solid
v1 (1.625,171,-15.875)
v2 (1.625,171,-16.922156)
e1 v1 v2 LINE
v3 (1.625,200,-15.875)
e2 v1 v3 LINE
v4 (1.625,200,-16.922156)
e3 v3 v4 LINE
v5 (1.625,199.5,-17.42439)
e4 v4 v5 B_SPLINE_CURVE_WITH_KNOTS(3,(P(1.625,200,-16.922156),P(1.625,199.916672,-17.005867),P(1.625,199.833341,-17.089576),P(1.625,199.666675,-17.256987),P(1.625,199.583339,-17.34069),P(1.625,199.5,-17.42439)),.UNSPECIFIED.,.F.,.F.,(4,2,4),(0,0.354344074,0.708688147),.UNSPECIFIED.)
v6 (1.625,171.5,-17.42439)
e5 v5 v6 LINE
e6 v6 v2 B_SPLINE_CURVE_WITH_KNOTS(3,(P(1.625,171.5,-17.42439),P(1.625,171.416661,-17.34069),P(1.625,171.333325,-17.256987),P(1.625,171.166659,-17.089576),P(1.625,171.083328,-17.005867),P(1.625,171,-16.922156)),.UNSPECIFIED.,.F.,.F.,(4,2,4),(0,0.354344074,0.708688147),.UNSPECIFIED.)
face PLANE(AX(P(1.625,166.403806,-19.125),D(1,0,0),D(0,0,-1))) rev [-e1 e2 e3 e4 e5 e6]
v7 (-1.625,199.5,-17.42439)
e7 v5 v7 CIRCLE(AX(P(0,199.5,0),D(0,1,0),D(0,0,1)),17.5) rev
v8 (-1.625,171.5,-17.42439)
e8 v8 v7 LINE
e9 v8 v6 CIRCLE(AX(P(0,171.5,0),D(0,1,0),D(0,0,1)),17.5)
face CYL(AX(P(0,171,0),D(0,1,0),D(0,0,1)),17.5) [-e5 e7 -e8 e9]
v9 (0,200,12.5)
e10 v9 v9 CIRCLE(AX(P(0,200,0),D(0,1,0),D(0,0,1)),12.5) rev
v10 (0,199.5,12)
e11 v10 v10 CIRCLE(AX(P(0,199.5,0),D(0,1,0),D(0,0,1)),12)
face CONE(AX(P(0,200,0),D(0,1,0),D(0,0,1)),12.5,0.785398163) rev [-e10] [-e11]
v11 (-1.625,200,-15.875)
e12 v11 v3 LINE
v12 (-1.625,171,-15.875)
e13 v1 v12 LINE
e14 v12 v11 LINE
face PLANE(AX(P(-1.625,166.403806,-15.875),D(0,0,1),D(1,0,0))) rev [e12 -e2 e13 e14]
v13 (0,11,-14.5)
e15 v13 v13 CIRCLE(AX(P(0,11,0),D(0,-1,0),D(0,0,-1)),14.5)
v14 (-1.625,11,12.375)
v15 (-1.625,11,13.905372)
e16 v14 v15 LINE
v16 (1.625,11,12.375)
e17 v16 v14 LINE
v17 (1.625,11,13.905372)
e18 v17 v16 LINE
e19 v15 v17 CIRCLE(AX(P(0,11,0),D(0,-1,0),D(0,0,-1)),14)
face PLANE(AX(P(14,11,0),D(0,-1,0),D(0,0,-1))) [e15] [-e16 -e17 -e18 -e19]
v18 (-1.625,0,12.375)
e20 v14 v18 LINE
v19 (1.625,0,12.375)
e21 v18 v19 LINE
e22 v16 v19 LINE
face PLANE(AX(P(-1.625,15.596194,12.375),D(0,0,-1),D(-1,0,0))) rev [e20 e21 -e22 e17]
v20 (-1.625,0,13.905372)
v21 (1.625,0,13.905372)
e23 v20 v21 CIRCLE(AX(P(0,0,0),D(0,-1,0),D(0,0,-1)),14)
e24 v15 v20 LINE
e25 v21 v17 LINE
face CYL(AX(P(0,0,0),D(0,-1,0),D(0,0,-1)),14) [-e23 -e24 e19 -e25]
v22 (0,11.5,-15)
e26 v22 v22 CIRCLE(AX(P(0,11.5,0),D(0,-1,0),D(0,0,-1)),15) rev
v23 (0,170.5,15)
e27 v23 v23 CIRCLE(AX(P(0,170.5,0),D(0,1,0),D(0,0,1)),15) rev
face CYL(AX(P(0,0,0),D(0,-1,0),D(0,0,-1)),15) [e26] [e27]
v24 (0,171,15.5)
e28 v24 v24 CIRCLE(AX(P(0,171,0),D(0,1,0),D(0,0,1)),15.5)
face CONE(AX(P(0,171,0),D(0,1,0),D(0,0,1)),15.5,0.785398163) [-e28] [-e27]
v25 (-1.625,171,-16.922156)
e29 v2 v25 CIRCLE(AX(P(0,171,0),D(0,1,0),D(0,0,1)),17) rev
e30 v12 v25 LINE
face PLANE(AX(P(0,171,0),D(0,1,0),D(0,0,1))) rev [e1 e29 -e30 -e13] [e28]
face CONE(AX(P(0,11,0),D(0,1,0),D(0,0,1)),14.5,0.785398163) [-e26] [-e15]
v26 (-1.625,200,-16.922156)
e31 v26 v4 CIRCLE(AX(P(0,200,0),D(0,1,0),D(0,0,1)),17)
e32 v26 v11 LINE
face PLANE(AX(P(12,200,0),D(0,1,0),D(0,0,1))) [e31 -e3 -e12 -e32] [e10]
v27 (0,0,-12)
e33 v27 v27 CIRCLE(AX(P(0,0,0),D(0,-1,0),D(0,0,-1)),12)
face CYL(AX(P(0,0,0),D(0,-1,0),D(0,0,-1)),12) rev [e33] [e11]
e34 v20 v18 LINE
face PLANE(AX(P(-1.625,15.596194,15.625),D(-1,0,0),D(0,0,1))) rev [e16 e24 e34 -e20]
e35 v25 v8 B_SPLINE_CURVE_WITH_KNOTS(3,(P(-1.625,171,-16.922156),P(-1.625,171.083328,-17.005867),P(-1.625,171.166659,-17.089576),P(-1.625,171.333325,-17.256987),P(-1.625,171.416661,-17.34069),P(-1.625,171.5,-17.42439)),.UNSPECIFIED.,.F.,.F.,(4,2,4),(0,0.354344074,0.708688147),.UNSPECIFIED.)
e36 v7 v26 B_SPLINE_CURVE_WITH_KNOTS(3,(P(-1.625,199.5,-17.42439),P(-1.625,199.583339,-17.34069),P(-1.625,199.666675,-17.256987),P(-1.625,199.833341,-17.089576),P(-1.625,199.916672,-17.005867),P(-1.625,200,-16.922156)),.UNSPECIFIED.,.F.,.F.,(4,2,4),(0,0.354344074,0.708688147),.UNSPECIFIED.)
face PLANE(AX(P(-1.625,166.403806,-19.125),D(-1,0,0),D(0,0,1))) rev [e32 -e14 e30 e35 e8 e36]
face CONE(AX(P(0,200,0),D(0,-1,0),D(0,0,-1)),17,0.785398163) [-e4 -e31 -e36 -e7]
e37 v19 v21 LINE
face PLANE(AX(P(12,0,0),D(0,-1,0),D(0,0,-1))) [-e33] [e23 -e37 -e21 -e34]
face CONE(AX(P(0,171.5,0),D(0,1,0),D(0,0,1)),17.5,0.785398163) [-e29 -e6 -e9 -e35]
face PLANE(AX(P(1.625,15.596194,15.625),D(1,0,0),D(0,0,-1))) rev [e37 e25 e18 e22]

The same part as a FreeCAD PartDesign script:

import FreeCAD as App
import Part
import Sketcher
Q = App.Units.Quantity


def edges_at(feature, points):
    """Names of the edges that pass closest to the given points."""
    edges = feature.Shape.Edges
    near = lambda p: min(range(len(edges)), key=lambda i: edges[i].distToShape(Part.Vertex(*p))[0])
    return sorted({f"Edge{near(p) + 1}" for p in points})

doc = App.newDocument("Part")
body = doc.addObject("PartDesign::Body", "Body")

sketch1 = body.newObject("Sketcher::SketchObject", "Sketch")
sketch1.AttachmentSupport = (doc.getObject("XY_Plane"), [""])
sketch1.MapMode = "FlatFace"
sketch1.addGeometry(Part.LineSegment(App.Vector(12, 200, 0), App.Vector(12, 0, 0)), False)
sketch1.addGeometry(Part.LineSegment(App.Vector(12, 0, 0), App.Vector(14, 0, 0)), False)
sketch1.addGeometry(Part.LineSegment(App.Vector(14, 0, 0), App.Vector(14, 11, 0)), False)
sketch1.addGeometry(Part.LineSegment(App.Vector(14, 11, 0), App.Vector(15, 11, 0)), False)
sketch1.addGeometry(Part.LineSegment(App.Vector(15, 11, 0), App.Vector(15, 200, 0)), False)
sketch1.addGeometry(Part.LineSegment(App.Vector(15, 200, 0), App.Vector(12, 200, 0)), False)
sketch1.addConstraint(Sketcher.Constraint("Coincident", 0, 2, 1, 1))
sketch1.addConstraint(Sketcher.Constraint("Coincident", 1, 2, 2, 1))
sketch1.addConstraint(Sketcher.Constraint("Coincident", 2, 2, 3, 1))
sketch1.addConstraint(Sketcher.Constraint("Coincident", 3, 2, 4, 1))
sketch1.addConstraint(Sketcher.Constraint("Coincident", 4, 2, 5, 1))
sketch1.addConstraint(Sketcher.Constraint("Coincident", 5, 2, 0, 1))
sketch1.addConstraint(Sketcher.Constraint("Vertical", 0))
sketch1.addConstraint(Sketcher.Constraint("Horizontal", 1))
sketch1.addConstraint(Sketcher.Constraint("Vertical", 2))
sketch1.addConstraint(Sketcher.Constraint("Horizontal", 3))
sketch1.addConstraint(Sketcher.Constraint("Vertical", 4))
sketch1.addConstraint(Sketcher.Constraint("Horizontal", 5))
sketch1.addConstraint(Sketcher.Constraint("PointOnObject", 0, 2, -1))
sketch1.addConstraint(Sketcher.Constraint("DistanceX", 1, 1, 1, 2, Q("2 mm")))
sketch1.addConstraint(Sketcher.Constraint("DistanceX", 3, 1, 3, 2, Q("1 mm")))
sketch1.addConstraint(Sketcher.Constraint("DistanceY", 0, 2, 0, 1, Q("200 mm")))
sketch1.addConstraint(Sketcher.Constraint("DistanceY", 2, 1, 2, 2, Q("11 mm")))
sketch1.addConstraint(Sketcher.Constraint("DistanceX", -1, 1, 0, 2, Q("12 mm")))
revolution = body.newObject("PartDesign::Revolution", "Revolution")
revolution.Profile = sketch1
revolution.ReferenceAxis = (sketch1, ["V_Axis"])
revolution.Angle = 360

sketch2 = body.newObject("Sketcher::SketchObject", "Sketch001")
sketch2.AttachmentSupport = (doc.getObject("XZ_Plane"), [""])
sketch2.MapMode = "FlatFace"
sketch2.addGeometry(Part.LineSegment(App.Vector(-1.6, 15.6, 0), App.Vector(-1.6, 12.4, 0)), False)
sketch2.addGeometry(Part.LineSegment(App.Vector(-1.6, 12.4, 0), App.Vector(1.6, 12.4, 0)), False)
sketch2.addGeometry(Part.LineSegment(App.Vector(1.6, 12.4, 0), App.Vector(1.6, 15.6, 0)), False)
sketch2.addGeometry(Part.LineSegment(App.Vector(1.6, 15.6, 0), App.Vector(-1.6, 15.6, 0)), False)
sketch2.addConstraint(Sketcher.Constraint("Coincident", 0, 2, 1, 1))
sketch2.addConstraint(Sketcher.Constraint("Coincident", 1, 2, 2, 1))
sketch2.addConstraint(Sketcher.Constraint("Coincident", 2, 2, 3, 1))
sketch2.addConstraint(Sketcher.Constraint("Coincident", 3, 2, 0, 1))
sketch2.addConstraint(Sketcher.Constraint("Vertical", 0))
sketch2.addConstraint(Sketcher.Constraint("Horizontal", 1))
sketch2.addConstraint(Sketcher.Constraint("Vertical", 2))
sketch2.addConstraint(Sketcher.Constraint("Horizontal", 3))
sketch2.addConstraint(Sketcher.Constraint("Equal", 3, 0))
sketch2.addConstraint(Sketcher.Constraint("DistanceX", 1, 1, 1, 2, Q("3.25 mm")))
sketch2.addConstraint(Sketcher.Constraint("DistanceX", 0, 2, -1, 1, Q("1.625 mm")))
sketch2.addConstraint(Sketcher.Constraint("DistanceY", -1, 1, 0, 2, Q("12.375 mm")))
pocket1 = body.newObject("PartDesign::Pocket", "Pocket")
pocket1.Profile = sketch2
pocket1.Length = 11
doc.recompute()

chamfer = body.newObject("PartDesign::Chamfer", "Chamfer")
chamfer.Base = (pocket1, edges_at(pocket1, [(0, 11, 15)]))
chamfer.Size = 0.5

sketch3 = body.newObject("Sketcher::SketchObject", "Sketch002")
sketch3.AttachmentSupport = (doc.getObject("XZ_Plane"), [""])
sketch3.MapMode = "FlatFace"
sketch3.AttachmentOffset = App.Placement(App.Vector(0, 0, -200), App.Rotation())
sketch3.addGeometry(Part.Circle(App.Vector(0, 0, 0), App.Vector(0, 0, 1), 18), False)
sketch3.addGeometry(Part.Circle(App.Vector(0, 0, 0), App.Vector(0, 0, 1), 15), False)
sketch3.addConstraint(Sketcher.Constraint("Coincident", 0, 3, -1, 1))
sketch3.addConstraint(Sketcher.Constraint("Coincident", 1, 3, -1, 1))
sketch3.addConstraint(Sketcher.Constraint("Diameter", 0, Q("35 mm")))
sketch3.addConstraint(Sketcher.Constraint("Diameter", 1, Q("30 mm")))
pad1 = body.newObject("PartDesign::Pad", "Pad")
pad1.Profile = sketch3
pad1.Length = 29

sketch4 = body.newObject("Sketcher::SketchObject", "Sketch003")
sketch4.AttachmentSupport = (doc.getObject("XZ_Plane"), [""])
sketch4.MapMode = "FlatFace"
sketch4.AttachmentOffset = App.Placement(App.Vector(0, 0, -200), App.Rotation())
sketch4.addGeometry(Part.LineSegment(App.Vector(-1.6, -19.1, 0), App.Vector(-1.6, -15.9, 0)), False)
sketch4.addGeometry(Part.LineSegment(App.Vector(-1.6, -15.9, 0), App.Vector(1.6, -15.9, 0)), False)
sketch4.addGeometry(Part.LineSegment(App.Vector(1.6, -15.9, 0), App.Vector(1.6, -19.1, 0)), False)
sketch4.addGeometry(Part.LineSegment(App.Vector(1.6, -19.1, 0), App.Vector(-1.6, -19.1, 0)), False)
sketch4.addConstraint(Sketcher.Constraint("Coincident", 0, 2, 1, 1))
sketch4.addConstraint(Sketcher.Constraint("Coincident", 1, 2, 2, 1))
sketch4.addConstraint(Sketcher.Constraint("Coincident", 2, 2, 3, 1))
sketch4.addConstraint(Sketcher.Constraint("Coincident", 3, 2, 0, 1))
sketch4.addConstraint(Sketcher.Constraint("Vertical", 0))
sketch4.addConstraint(Sketcher.Constraint("Horizontal", 1))
sketch4.addConstraint(Sketcher.Constraint("Vertical", 2))
sketch4.addConstraint(Sketcher.Constraint("Horizontal", 3))
sketch4.addConstraint(Sketcher.Constraint("Equal", 3, 0))
sketch4.addConstraint(Sketcher.Constraint("DistanceX", 1, 1, 1, 2, Q("3.25 mm")))
sketch4.addConstraint(Sketcher.Constraint("DistanceX", 0, 2, -1, 1, Q("1.625 mm")))
sketch4.addConstraint(Sketcher.Constraint("DistanceY", 0, 2, -1, 1, Q("15.875 mm")))
pocket2 = body.newObject("PartDesign::Pocket", "Pocket001")
pocket2.Profile = sketch4
pocket2.Length = 29
pocket2.Reversed = True
doc.recompute()

chamfer2 = body.newObject("PartDesign::Chamfer", "Chamfer001")
chamfer2.Base = (pocket2, edges_at(pocket2, [
    (0, 171, 15),
    (-17.481, 171, 0.813),
    (-17.481, 200, 0.813),
    (0, 200, 12),
]))
chamfer2.Size = 0.5

doc.recompute()
